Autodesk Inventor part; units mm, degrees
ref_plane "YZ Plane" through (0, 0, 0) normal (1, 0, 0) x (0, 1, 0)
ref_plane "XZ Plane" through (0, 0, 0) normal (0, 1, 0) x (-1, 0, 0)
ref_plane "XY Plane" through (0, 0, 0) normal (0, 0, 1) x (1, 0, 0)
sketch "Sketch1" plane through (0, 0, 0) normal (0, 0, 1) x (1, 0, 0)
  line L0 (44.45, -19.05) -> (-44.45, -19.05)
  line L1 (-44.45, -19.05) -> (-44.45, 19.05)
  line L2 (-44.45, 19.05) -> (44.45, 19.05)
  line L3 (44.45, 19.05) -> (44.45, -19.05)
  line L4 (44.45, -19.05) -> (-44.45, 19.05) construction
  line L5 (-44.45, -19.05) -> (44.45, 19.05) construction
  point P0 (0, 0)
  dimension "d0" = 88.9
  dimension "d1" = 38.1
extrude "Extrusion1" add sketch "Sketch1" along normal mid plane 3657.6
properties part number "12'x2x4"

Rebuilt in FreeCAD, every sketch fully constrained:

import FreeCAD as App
import Part
import Sketcher
from FreeCAD import Vector
Q = App.Units.Quantity


def add_polygon(sketch, points):
    """Adds a closed chain of lines whose ends are joined by coincident constraints."""
    first, n = sketch.GeometryCount, len(points)
    for a, b in zip(points, points[1:] + points[:1]):
        sketch.addGeometry(Part.LineSegment(App.Vector(*a, 0), App.Vector(*b, 0)), False)
    for i in range(n):
        sketch.addConstraint(Sketcher.Constraint("Coincident", first + i, 2, first + (i + 1) % n, 1))

doc = App.newDocument("Part")
body = doc.addObject("PartDesign::Body", "Body")

sketch1 = doc.addObject("Sketcher::SketchObject", "Sketch")
body.addObject(sketch1)
sketch1.AttachmentSupport = (doc.XY_Plane, [""])
sketch1.MapMode = "FlatFace"
add_polygon(sketch1, [(-44, -19), (44, -19), (44, 19), (-44, 19)])
sketch1.addConstraint(Sketcher.Constraint("Horizontal", 0))
sketch1.addConstraint(Sketcher.Constraint("Vertical", 1))
sketch1.addConstraint(Sketcher.Constraint("Horizontal", 2))
sketch1.addConstraint(Sketcher.Constraint("Vertical", 3))
sketch1.addConstraint(Sketcher.Constraint("Symmetric", 0, 2, 2, 2, -1, 1))
sketch1.addConstraint(Sketcher.Constraint("DistanceX", 0, 1, 0, 2, Q("3.5 in")))
sketch1.addConstraint(Sketcher.Constraint("DistanceY", 1, 1, 1, 2, Q("1.5 in")))
pad1 = doc.addObject("PartDesign::Pad", "Pad")
body.addObject(pad1)
pad1.Profile = sketch1
pad1.Length = Q("144 in")
pad1.Midplane = True

doc.recompute()
